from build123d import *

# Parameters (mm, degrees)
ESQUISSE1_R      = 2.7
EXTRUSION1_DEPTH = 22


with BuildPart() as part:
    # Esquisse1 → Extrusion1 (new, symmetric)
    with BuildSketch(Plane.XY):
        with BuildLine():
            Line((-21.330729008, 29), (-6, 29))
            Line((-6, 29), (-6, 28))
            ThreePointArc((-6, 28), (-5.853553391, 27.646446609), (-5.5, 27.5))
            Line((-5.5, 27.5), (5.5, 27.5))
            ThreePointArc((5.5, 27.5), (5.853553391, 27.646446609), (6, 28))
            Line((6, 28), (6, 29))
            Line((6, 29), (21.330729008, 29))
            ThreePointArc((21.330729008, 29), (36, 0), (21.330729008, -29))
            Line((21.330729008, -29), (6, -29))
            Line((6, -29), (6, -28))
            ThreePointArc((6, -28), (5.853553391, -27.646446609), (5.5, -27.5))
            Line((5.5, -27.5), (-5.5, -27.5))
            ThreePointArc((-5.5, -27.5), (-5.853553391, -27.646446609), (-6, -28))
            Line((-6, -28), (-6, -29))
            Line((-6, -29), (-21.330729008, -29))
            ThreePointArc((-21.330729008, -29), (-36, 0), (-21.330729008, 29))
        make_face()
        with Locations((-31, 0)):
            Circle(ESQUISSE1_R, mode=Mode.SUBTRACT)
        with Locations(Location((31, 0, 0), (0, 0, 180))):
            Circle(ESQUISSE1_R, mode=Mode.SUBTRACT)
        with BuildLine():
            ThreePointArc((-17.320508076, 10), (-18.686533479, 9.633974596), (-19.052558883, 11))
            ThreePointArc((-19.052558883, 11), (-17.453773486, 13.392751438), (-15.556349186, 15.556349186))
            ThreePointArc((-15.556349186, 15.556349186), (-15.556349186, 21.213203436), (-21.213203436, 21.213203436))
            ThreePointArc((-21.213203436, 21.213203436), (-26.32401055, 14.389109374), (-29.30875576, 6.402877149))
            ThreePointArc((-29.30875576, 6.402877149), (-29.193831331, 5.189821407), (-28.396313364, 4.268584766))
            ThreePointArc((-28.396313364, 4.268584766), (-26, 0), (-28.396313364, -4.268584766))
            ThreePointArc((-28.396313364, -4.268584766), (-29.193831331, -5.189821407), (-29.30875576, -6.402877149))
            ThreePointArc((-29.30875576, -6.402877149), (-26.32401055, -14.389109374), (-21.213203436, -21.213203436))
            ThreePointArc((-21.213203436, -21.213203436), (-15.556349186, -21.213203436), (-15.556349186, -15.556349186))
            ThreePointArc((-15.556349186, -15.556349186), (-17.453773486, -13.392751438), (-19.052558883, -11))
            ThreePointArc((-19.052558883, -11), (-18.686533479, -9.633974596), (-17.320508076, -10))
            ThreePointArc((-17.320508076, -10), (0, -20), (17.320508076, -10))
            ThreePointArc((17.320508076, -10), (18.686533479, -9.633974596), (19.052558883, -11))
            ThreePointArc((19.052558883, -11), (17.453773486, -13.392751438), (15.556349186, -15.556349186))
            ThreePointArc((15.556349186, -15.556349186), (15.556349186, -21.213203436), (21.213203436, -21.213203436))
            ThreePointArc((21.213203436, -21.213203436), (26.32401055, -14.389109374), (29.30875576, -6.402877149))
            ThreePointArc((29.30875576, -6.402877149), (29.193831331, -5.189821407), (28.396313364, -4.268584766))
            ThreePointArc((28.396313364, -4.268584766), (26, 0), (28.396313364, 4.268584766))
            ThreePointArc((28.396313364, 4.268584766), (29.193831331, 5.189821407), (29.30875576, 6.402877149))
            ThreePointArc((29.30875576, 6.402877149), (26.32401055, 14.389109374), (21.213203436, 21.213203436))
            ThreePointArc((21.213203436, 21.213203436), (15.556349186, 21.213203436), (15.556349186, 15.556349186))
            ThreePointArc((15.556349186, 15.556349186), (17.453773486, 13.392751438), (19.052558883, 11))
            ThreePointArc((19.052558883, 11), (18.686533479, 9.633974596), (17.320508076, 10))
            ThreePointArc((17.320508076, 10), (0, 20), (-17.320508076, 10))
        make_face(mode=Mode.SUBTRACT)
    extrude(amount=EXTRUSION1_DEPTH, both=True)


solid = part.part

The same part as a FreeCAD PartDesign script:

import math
import FreeCAD as App
import Part
import Sketcher

doc = App.newDocument("Part")
body = doc.addObject("PartDesign::Body", "Body")

sketch1 = body.newObject("Sketcher::SketchObject", "Sketch")
sketch1.AttachmentSupport = (doc.getObject("XY_Plane"), [""])
sketch1.MapMode = "FlatFace"
sketch1.addGeometry(Part.LineSegment(App.Vector(-6, 29, 0), App.Vector(-21.33, 29, 0)), False)
sketch1.addGeometry(Part.ArcOfCircle(Part.Circle(App.Vector(0, 0, 0), App.Vector(0, 0, 1), 36), math.radians(126), math.radians(234)), False)
sketch1.addGeometry(Part.LineSegment(App.Vector(-21.33, -29, 0), App.Vector(-6, -29, 0)), False)
sketch1.addGeometry(Part.LineSegment(App.Vector(-6, -29, 0), App.Vector(-6, -28, 0)), False)
sketch1.addGeometry(Part.ArcOfCircle(Part.Circle(App.Vector(-5.5, -28, 0), App.Vector(0, 0, 1), 0.5), math.radians(90), math.radians(180)), False)
sketch1.addGeometry(Part.LineSegment(App.Vector(-5.5, -27.5, 0), App.Vector(5.5, -27.5, 0)), False)
sketch1.addGeometry(Part.ArcOfCircle(Part.Circle(App.Vector(5.5, -28, 0), App.Vector(0, 0, 1), 0.5), math.radians(0), math.radians(90)), False)
sketch1.addGeometry(Part.LineSegment(App.Vector(6, -28, 0), App.Vector(6, -29, 0)), False)
sketch1.addGeometry(Part.LineSegment(App.Vector(6, -29, 0), App.Vector(21.33, -29, 0)), False)
sketch1.addGeometry(Part.ArcOfCircle(Part.Circle(App.Vector(0, 0, 0), App.Vector(0, 0, 1), 36), math.radians(-54), math.radians(54)), False)
sketch1.addGeometry(Part.LineSegment(App.Vector(21.33, 29, 0), App.Vector(6, 29, 0)), False)
sketch1.addGeometry(Part.LineSegment(App.Vector(6, 29, 0), App.Vector(6, 28, 0)), False)
sketch1.addGeometry(Part.ArcOfCircle(Part.Circle(App.Vector(5.5, 28, 0), App.Vector(0, 0, 1), 0.5), math.radians(-90), math.radians(0)), False)
sketch1.addGeometry(Part.LineSegment(App.Vector(5.5, 27.5, 0), App.Vector(-5.5, 27.5, 0)), False)
sketch1.addGeometry(Part.ArcOfCircle(Part.Circle(App.Vector(-5.5, 28, 0), App.Vector(0, 0, 1), 0.5), math.radians(180), math.radians(270)), False)
sketch1.addGeometry(Part.LineSegment(App.Vector(-6, 28, 0), App.Vector(-6, 29, 0)), False)
sketch1.addGeometry(Part.Circle(App.Vector(31, 0, 0), App.Vector(0, 0, 1), 2.7), False)
sketch1.addGeometry(Part.ArcOfCircle(Part.Circle(App.Vector(0, 0, 0), App.Vector(0, 0, 1), 20), math.radians(30), math.radians(150)), False)
sketch1.addGeometry(Part.ArcOfCircle(Part.Circle(App.Vector(18.19, 10.5, 0), App.Vector(0, 0, 1), 1), math.radians(-150), math.radians(30)), False)
sketch1.addGeometry(Part.ArcOfCircle(Part.Circle(App.Vector(0, 0, 0), App.Vector(0, 0, 1), 22), math.radians(30), math.radians(45)), False)
sketch1.addGeometry(Part.ArcOfCircle(Part.Circle(App.Vector(18.38, 18.38, 0), App.Vector(0, 0, 1), 4), math.radians(45), math.radians(225)), False)
sketch1.addGeometry(Part.ArcOfCircle(Part.Circle(App.Vector(0, 0, 0), App.Vector(0, 0, 1), 30), math.radians(12), math.radians(45)), False)
sketch1.addGeometry(Part.ArcOfCircle(Part.Circle(App.Vector(27.35, 5.98, 0), App.Vector(0, 0, 1), 2), math.radians(-59), math.radians(12)), False)
sketch1.addGeometry(Part.ArcOfCircle(Part.Circle(App.Vector(31, 0, 0), App.Vector(0, 0, 1), 5), math.radians(121), math.radians(239)), False)
sketch1.addGeometry(Part.ArcOfCircle(Part.Circle(App.Vector(27.35, -5.98, 0), App.Vector(0, 0, 1), 2), math.radians(-12), math.radians(59)), False)
sketch1.addGeometry(Part.ArcOfCircle(Part.Circle(App.Vector(0, 0, 0), App.Vector(0, 0, 1), 30), math.radians(-45), math.radians(-12)), False)
sketch1.addGeometry(Part.ArcOfCircle(Part.Circle(App.Vector(18.38, -18.38, 0), App.Vector(0, 0, 1), 4), math.radians(135), math.radians(315)), False)
sketch1.addGeometry(Part.ArcOfCircle(Part.Circle(App.Vector(0, 0, 0), App.Vector(0, 0, 1), 22), math.radians(-45), math.radians(-30)), False)
sketch1.addGeometry(Part.ArcOfCircle(Part.Circle(App.Vector(18.19, -10.5, 0), App.Vector(0, 0, 1), 1), math.radians(-30), math.radians(150)), False)
sketch1.addGeometry(Part.ArcOfCircle(Part.Circle(App.Vector(0, 0, 0), App.Vector(0, 0, 1), 20), math.radians(-150), math.radians(-30)), False)
sketch1.addGeometry(Part.ArcOfCircle(Part.Circle(App.Vector(-18.19, -10.5, 0), App.Vector(0, 0, 1), 1), math.radians(30), math.radians(210)), False)
sketch1.addGeometry(Part.ArcOfCircle(Part.Circle(App.Vector(0, 0, 0), App.Vector(0, 0, 1), 22), math.radians(-150), math.radians(-135)), False)
sketch1.addGeometry(Part.ArcOfCircle(Part.Circle(App.Vector(-18.38, -18.38, 0), App.Vector(0, 0, 1), 4), math.radians(-135), math.radians(45)), False)
sketch1.addGeometry(Part.ArcOfCircle(Part.Circle(App.Vector(0, 0, 0), App.Vector(0, 0, 1), 30), math.radians(-168), math.radians(-135)), False)
sketch1.addGeometry(Part.ArcOfCircle(Part.Circle(App.Vector(-27.35, -5.98, 0), App.Vector(0, 0, 1), 2), math.radians(121), math.radians(192)), False)
sketch1.addGeometry(Part.ArcOfCircle(Part.Circle(App.Vector(-31, 0, 0), App.Vector(0, 0, 1), 5), math.radians(-59), math.radians(59)), False)
sketch1.addGeometry(Part.ArcOfCircle(Part.Circle(App.Vector(-27.35, 5.98, 0), App.Vector(0, 0, 1), 2), math.radians(168), math.radians(239)), False)
sketch1.addGeometry(Part.ArcOfCircle(Part.Circle(App.Vector(0, 0, 0), App.Vector(0, 0, 1), 30), math.radians(135), math.radians(168)), False)
sketch1.addGeometry(Part.ArcOfCircle(Part.Circle(App.Vector(-18.38, 18.38, 0), App.Vector(0, 0, 1), 4), math.radians(-45), math.radians(135)), False)
sketch1.addGeometry(Part.ArcOfCircle(Part.Circle(App.Vector(0, 0, 0), App.Vector(0, 0, 1), 22), math.radians(135), math.radians(150)), False)
sketch1.addGeometry(Part.ArcOfCircle(Part.Circle(App.Vector(-18.19, 10.5, 0), App.Vector(0, 0, 1), 1), math.radians(150), math.radians(330)), False)
sketch1.addGeometry(Part.Circle(App.Vector(-31, 0, 0), App.Vector(0, 0, 1), 2.7), False)
sketch1.addConstraint(Sketcher.Constraint("Coincident", 0, 2, 1, 1))
sketch1.addConstraint(Sketcher.Constraint("Coincident", 1, 2, 2, 1))
sketch1.addConstraint(Sketcher.Constraint("Coincident", 2, 2, 3, 1))
sketch1.addConstraint(Sketcher.Constraint("Tangent", 3, 2, 4, 2))
sketch1.addConstraint(Sketcher.Constraint("Tangent", 4, 1, 5, 1))
sketch1.addConstraint(Sketcher.Constraint("Tangent", 5, 2, 6, 2))
sketch1.addConstraint(Sketcher.Constraint("Tangent", 6, 1, 7, 1))
sketch1.addConstraint(Sketcher.Constraint("Coincident", 7, 2, 8, 1))
sketch1.addConstraint(Sketcher.Constraint("Coincident", 8, 2, 9, 1))
sketch1.addConstraint(Sketcher.Constraint("Coincident", 9, 2, 10, 1))
sketch1.addConstraint(Sketcher.Constraint("Coincident", 10, 2, 11, 1))
sketch1.addConstraint(Sketcher.Constraint("Tangent", 11, 2, 12, 2))
sketch1.addConstraint(Sketcher.Constraint("Tangent", 12, 1, 13, 1))
sketch1.addConstraint(Sketcher.Constraint("Tangent", 13, 2, 14, 2))
sketch1.addConstraint(Sketcher.Constraint("Tangent", 14, 1, 15, 1))
sketch1.addConstraint(Sketcher.Constraint("Coincident", 15, 2, 0, 1))
sketch1.addConstraint(Sketcher.Constraint("Tangent", 17, 1, 18, 1))
sketch1.addConstraint(Sketcher.Constraint("Tangent", 18, 2, 19, 1))
sketch1.addConstraint(Sketcher.Constraint("Tangent", 19, 2, 20, 2))
sketch1.addConstraint(Sketcher.Constraint("Tangent", 20, 1, 21, 2))
sketch1.addConstraint(Sketcher.Constraint("Tangent", 21, 1, 22, 2))
sketch1.addConstraint(Sketcher.Constraint("Tangent", 22, 1, 23, 1))
sketch1.addConstraint(Sketcher.Constraint("Tangent", 23, 2, 24, 2))
sketch1.addConstraint(Sketcher.Constraint("Tangent", 24, 1, 25, 2))
sketch1.addConstraint(Sketcher.Constraint("Tangent", 25, 1, 26, 2))
sketch1.addConstraint(Sketcher.Constraint("Tangent", 26, 1, 27, 1))
sketch1.addConstraint(Sketcher.Constraint("Tangent", 27, 2, 28, 1))
sketch1.addConstraint(Sketcher.Constraint("Tangent", 28, 2, 29, 2))
sketch1.addConstraint(Sketcher.Constraint("Tangent", 29, 1, 30, 1))
sketch1.addConstraint(Sketcher.Constraint("Tangent", 30, 2, 31, 1))
sketch1.addConstraint(Sketcher.Constraint("Tangent", 31, 2, 32, 2))
sketch1.addConstraint(Sketcher.Constraint("Tangent", 32, 1, 33, 2))
sketch1.addConstraint(Sketcher.Constraint("Tangent", 33, 1, 34, 2))
sketch1.addConstraint(Sketcher.Constraint("Tangent", 34, 1, 35, 1))
sketch1.addConstraint(Sketcher.Constraint("Tangent", 35, 2, 36, 2))
sketch1.addConstraint(Sketcher.Constraint("Tangent", 36, 1, 37, 2))
sketch1.addConstraint(Sketcher.Constraint("Tangent", 37, 1, 38, 2))
sketch1.addConstraint(Sketcher.Constraint("Tangent", 38, 1, 39, 1))
sketch1.addConstraint(Sketcher.Constraint("Tangent", 39, 2, 40, 1))
sketch1.addConstraint(Sketcher.Constraint("Tangent", 40, 2, 17, 2))
sketch1.addConstraint(Sketcher.Constraint("Horizontal", 0))
sketch1.addConstraint(Sketcher.Constraint("Horizontal", 2))
sketch1.addConstraint(Sketcher.Constraint("Vertical", 3))
sketch1.addConstraint(Sketcher.Constraint("Horizontal", 5))
sketch1.addConstraint(Sketcher.Constraint("Vertical", 7))
sketch1.addConstraint(Sketcher.Constraint("Horizontal", 8))
sketch1.addConstraint(Sketcher.Constraint("Horizontal", 10))
sketch1.addConstraint(Sketcher.Constraint("Vertical", 11))
sketch1.addConstraint(Sketcher.Constraint("Horizontal", 13))
sketch1.addConstraint(Sketcher.Constraint("Vertical", 15))
sketch1.addConstraint(Sketcher.Constraint("Coincident", 1, 3, -1, 1))
sketch1.addConstraint(Sketcher.Constraint("Coincident", 9, 3, -1, 1))
sketch1.addConstraint(Sketcher.Constraint("Coincident", 17, 3, -1, 1))
sketch1.addConstraint(Sketcher.Constraint("Coincident", 19, 3, -1, 1))
sketch1.addConstraint(Sketcher.Constraint("Coincident", 21, 3, -1, 1))
sketch1.addConstraint(Sketcher.Constraint("Coincident", 25, 3, -1, 1))
sketch1.addConstraint(Sketcher.Constraint("Coincident", 27, 3, -1, 1))
sketch1.addConstraint(Sketcher.Constraint("Coincident", 29, 3, -1, 1))
sketch1.addConstraint(Sketcher.Constraint("Coincident", 31, 3, -1, 1))
sketch1.addConstraint(Sketcher.Constraint("Coincident", 33, 3, -1, 1))
sketch1.addConstraint(Sketcher.Constraint("Coincident", 37, 3, -1, 1))
sketch1.addConstraint(Sketcher.Constraint("Coincident", 39, 3, -1, 1))
sketch1.addConstraint(Sketcher.Constraint("Coincident", 23, 3, 16, 3))
sketch1.addConstraint(Sketcher.Constraint("Coincident", 41, 3, 35, 3))
sketch1.addConstraint(Sketcher.Constraint("Equal", 4, 6))
sketch1.addConstraint(Sketcher.Constraint("Equal", 1, 9))
sketch1.addConstraint(Sketcher.Constraint("Equal", 6, 12))
sketch1.addConstraint(Sketcher.Constraint("Equal", 12, 14))
sketch1.addConstraint(Sketcher.Constraint("Equal", 22, 24))
sketch1.addConstraint(Sketcher.Constraint("Equal", 21, 25))
sketch1.addConstraint(Sketcher.Constraint("Equal", 20, 26))
sketch1.addConstraint(Sketcher.Constraint("Equal", 18, 28))
sketch1.addConstraint(Sketcher.Constraint("Equal", 28, 30))
sketch1.addConstraint(Sketcher.Constraint("Equal", 26, 32))
sketch1.addConstraint(Sketcher.Constraint("Equal", 24, 34))
sketch1.addConstraint(Sketcher.Constraint("Equal", 23, 35))
sketch1.addConstraint(Sketcher.Constraint("Equal", 34, 36))
sketch1.addConstraint(Sketcher.Constraint("Equal", 33, 37))
sketch1.addConstraint(Sketcher.Constraint("Equal", 32, 38))
sketch1.addConstraint(Sketcher.Constraint("Equal", 16, 41))
sketch1.addConstraint(Sketcher.Constraint("Symmetric", 4, 3, 12, 3, -1, 1))
sketch1.addConstraint(Sketcher.Constraint("Symmetric", 16, 3, 35, 3, -1, 1))
sketch1.addConstraint(Sketcher.Constraint("Symmetric", 7, 2, 15, 2, -1, 1))
sketch1.addConstraint(Sketcher.Constraint("Symmetric", 2, 2, 7, 2, -2))
sketch1.addConstraint(Sketcher.Constraint("PointOnObject", 16, 3, -1))
sketch1.addConstraint(Sketcher.Constraint("Horizontal", 28, 3, 30, 3))
sketch1.addConstraint(Sketcher.Constraint("Horizontal", 26, 3, 32, 3))
sketch1.addConstraint(Sketcher.Constraint("Horizontal", 20, 3, 38, 3))
sketch1.addConstraint(Sketcher.Constraint("Horizontal", 18, 3, 40, 3))
sketch1.addConstraint(Sketcher.Constraint("Horizontal", 0, 2, 9, 2))
sketch1.addConstraint(Sketcher.Constraint("Vertical", 20, 3, 26, 3))
sketch1.addConstraint(Sketcher.Constraint("Vertical", 18, 3, 28, 3))
sketch1.addConstraint(Sketcher.Constraint("Radius", 1, 36.0))
sketch1.addConstraint(Sketcher.Constraint("Radius", 17, 20.0))
sketch1.addConstraint(Sketcher.Constraint("Radius", 18, 1.0))
sketch1.addConstraint(Sketcher.Constraint("Radius", 20, 4.0))
sketch1.addConstraint(Sketcher.Constraint("Radius", 22, 2.0))
sketch1.addConstraint(Sketcher.Constraint("Radius", 23, 5.0))
sketch1.addConstraint(Sketcher.Constraint("Diameter", 16, 5.4))
sketch1.addConstraint(Sketcher.Constraint("Radius", 4, 0.5))
sketch1.addConstraint(Sketcher.Constraint("DistanceX", 5, 1, 5, 2, 11.0))
sketch1.addConstraint(Sketcher.Constraint("DistanceY", 3, 1, 3, 2, 1.0))
sketch1.addConstraint(Sketcher.Constraint("DistanceY", 4, 3, -1, 1, 28.0))
sketch1.addConstraint(Sketcher.Constraint("DistanceX", -1, 1, 16, 3, 31.0))
sketch1.addConstraint(Sketcher.Constraint("DistanceY", -1, 1, 17, 1, 10.0))
sketch1.addConstraint(Sketcher.Constraint("DistanceX", -1, 1, 19, 2, 15.556349))
pad1 = body.newObject("PartDesign::Pad", "Pad")
pad1.Profile = sketch1
pad1.Length = 44
pad1.Midplane = True

doc.recompute()
